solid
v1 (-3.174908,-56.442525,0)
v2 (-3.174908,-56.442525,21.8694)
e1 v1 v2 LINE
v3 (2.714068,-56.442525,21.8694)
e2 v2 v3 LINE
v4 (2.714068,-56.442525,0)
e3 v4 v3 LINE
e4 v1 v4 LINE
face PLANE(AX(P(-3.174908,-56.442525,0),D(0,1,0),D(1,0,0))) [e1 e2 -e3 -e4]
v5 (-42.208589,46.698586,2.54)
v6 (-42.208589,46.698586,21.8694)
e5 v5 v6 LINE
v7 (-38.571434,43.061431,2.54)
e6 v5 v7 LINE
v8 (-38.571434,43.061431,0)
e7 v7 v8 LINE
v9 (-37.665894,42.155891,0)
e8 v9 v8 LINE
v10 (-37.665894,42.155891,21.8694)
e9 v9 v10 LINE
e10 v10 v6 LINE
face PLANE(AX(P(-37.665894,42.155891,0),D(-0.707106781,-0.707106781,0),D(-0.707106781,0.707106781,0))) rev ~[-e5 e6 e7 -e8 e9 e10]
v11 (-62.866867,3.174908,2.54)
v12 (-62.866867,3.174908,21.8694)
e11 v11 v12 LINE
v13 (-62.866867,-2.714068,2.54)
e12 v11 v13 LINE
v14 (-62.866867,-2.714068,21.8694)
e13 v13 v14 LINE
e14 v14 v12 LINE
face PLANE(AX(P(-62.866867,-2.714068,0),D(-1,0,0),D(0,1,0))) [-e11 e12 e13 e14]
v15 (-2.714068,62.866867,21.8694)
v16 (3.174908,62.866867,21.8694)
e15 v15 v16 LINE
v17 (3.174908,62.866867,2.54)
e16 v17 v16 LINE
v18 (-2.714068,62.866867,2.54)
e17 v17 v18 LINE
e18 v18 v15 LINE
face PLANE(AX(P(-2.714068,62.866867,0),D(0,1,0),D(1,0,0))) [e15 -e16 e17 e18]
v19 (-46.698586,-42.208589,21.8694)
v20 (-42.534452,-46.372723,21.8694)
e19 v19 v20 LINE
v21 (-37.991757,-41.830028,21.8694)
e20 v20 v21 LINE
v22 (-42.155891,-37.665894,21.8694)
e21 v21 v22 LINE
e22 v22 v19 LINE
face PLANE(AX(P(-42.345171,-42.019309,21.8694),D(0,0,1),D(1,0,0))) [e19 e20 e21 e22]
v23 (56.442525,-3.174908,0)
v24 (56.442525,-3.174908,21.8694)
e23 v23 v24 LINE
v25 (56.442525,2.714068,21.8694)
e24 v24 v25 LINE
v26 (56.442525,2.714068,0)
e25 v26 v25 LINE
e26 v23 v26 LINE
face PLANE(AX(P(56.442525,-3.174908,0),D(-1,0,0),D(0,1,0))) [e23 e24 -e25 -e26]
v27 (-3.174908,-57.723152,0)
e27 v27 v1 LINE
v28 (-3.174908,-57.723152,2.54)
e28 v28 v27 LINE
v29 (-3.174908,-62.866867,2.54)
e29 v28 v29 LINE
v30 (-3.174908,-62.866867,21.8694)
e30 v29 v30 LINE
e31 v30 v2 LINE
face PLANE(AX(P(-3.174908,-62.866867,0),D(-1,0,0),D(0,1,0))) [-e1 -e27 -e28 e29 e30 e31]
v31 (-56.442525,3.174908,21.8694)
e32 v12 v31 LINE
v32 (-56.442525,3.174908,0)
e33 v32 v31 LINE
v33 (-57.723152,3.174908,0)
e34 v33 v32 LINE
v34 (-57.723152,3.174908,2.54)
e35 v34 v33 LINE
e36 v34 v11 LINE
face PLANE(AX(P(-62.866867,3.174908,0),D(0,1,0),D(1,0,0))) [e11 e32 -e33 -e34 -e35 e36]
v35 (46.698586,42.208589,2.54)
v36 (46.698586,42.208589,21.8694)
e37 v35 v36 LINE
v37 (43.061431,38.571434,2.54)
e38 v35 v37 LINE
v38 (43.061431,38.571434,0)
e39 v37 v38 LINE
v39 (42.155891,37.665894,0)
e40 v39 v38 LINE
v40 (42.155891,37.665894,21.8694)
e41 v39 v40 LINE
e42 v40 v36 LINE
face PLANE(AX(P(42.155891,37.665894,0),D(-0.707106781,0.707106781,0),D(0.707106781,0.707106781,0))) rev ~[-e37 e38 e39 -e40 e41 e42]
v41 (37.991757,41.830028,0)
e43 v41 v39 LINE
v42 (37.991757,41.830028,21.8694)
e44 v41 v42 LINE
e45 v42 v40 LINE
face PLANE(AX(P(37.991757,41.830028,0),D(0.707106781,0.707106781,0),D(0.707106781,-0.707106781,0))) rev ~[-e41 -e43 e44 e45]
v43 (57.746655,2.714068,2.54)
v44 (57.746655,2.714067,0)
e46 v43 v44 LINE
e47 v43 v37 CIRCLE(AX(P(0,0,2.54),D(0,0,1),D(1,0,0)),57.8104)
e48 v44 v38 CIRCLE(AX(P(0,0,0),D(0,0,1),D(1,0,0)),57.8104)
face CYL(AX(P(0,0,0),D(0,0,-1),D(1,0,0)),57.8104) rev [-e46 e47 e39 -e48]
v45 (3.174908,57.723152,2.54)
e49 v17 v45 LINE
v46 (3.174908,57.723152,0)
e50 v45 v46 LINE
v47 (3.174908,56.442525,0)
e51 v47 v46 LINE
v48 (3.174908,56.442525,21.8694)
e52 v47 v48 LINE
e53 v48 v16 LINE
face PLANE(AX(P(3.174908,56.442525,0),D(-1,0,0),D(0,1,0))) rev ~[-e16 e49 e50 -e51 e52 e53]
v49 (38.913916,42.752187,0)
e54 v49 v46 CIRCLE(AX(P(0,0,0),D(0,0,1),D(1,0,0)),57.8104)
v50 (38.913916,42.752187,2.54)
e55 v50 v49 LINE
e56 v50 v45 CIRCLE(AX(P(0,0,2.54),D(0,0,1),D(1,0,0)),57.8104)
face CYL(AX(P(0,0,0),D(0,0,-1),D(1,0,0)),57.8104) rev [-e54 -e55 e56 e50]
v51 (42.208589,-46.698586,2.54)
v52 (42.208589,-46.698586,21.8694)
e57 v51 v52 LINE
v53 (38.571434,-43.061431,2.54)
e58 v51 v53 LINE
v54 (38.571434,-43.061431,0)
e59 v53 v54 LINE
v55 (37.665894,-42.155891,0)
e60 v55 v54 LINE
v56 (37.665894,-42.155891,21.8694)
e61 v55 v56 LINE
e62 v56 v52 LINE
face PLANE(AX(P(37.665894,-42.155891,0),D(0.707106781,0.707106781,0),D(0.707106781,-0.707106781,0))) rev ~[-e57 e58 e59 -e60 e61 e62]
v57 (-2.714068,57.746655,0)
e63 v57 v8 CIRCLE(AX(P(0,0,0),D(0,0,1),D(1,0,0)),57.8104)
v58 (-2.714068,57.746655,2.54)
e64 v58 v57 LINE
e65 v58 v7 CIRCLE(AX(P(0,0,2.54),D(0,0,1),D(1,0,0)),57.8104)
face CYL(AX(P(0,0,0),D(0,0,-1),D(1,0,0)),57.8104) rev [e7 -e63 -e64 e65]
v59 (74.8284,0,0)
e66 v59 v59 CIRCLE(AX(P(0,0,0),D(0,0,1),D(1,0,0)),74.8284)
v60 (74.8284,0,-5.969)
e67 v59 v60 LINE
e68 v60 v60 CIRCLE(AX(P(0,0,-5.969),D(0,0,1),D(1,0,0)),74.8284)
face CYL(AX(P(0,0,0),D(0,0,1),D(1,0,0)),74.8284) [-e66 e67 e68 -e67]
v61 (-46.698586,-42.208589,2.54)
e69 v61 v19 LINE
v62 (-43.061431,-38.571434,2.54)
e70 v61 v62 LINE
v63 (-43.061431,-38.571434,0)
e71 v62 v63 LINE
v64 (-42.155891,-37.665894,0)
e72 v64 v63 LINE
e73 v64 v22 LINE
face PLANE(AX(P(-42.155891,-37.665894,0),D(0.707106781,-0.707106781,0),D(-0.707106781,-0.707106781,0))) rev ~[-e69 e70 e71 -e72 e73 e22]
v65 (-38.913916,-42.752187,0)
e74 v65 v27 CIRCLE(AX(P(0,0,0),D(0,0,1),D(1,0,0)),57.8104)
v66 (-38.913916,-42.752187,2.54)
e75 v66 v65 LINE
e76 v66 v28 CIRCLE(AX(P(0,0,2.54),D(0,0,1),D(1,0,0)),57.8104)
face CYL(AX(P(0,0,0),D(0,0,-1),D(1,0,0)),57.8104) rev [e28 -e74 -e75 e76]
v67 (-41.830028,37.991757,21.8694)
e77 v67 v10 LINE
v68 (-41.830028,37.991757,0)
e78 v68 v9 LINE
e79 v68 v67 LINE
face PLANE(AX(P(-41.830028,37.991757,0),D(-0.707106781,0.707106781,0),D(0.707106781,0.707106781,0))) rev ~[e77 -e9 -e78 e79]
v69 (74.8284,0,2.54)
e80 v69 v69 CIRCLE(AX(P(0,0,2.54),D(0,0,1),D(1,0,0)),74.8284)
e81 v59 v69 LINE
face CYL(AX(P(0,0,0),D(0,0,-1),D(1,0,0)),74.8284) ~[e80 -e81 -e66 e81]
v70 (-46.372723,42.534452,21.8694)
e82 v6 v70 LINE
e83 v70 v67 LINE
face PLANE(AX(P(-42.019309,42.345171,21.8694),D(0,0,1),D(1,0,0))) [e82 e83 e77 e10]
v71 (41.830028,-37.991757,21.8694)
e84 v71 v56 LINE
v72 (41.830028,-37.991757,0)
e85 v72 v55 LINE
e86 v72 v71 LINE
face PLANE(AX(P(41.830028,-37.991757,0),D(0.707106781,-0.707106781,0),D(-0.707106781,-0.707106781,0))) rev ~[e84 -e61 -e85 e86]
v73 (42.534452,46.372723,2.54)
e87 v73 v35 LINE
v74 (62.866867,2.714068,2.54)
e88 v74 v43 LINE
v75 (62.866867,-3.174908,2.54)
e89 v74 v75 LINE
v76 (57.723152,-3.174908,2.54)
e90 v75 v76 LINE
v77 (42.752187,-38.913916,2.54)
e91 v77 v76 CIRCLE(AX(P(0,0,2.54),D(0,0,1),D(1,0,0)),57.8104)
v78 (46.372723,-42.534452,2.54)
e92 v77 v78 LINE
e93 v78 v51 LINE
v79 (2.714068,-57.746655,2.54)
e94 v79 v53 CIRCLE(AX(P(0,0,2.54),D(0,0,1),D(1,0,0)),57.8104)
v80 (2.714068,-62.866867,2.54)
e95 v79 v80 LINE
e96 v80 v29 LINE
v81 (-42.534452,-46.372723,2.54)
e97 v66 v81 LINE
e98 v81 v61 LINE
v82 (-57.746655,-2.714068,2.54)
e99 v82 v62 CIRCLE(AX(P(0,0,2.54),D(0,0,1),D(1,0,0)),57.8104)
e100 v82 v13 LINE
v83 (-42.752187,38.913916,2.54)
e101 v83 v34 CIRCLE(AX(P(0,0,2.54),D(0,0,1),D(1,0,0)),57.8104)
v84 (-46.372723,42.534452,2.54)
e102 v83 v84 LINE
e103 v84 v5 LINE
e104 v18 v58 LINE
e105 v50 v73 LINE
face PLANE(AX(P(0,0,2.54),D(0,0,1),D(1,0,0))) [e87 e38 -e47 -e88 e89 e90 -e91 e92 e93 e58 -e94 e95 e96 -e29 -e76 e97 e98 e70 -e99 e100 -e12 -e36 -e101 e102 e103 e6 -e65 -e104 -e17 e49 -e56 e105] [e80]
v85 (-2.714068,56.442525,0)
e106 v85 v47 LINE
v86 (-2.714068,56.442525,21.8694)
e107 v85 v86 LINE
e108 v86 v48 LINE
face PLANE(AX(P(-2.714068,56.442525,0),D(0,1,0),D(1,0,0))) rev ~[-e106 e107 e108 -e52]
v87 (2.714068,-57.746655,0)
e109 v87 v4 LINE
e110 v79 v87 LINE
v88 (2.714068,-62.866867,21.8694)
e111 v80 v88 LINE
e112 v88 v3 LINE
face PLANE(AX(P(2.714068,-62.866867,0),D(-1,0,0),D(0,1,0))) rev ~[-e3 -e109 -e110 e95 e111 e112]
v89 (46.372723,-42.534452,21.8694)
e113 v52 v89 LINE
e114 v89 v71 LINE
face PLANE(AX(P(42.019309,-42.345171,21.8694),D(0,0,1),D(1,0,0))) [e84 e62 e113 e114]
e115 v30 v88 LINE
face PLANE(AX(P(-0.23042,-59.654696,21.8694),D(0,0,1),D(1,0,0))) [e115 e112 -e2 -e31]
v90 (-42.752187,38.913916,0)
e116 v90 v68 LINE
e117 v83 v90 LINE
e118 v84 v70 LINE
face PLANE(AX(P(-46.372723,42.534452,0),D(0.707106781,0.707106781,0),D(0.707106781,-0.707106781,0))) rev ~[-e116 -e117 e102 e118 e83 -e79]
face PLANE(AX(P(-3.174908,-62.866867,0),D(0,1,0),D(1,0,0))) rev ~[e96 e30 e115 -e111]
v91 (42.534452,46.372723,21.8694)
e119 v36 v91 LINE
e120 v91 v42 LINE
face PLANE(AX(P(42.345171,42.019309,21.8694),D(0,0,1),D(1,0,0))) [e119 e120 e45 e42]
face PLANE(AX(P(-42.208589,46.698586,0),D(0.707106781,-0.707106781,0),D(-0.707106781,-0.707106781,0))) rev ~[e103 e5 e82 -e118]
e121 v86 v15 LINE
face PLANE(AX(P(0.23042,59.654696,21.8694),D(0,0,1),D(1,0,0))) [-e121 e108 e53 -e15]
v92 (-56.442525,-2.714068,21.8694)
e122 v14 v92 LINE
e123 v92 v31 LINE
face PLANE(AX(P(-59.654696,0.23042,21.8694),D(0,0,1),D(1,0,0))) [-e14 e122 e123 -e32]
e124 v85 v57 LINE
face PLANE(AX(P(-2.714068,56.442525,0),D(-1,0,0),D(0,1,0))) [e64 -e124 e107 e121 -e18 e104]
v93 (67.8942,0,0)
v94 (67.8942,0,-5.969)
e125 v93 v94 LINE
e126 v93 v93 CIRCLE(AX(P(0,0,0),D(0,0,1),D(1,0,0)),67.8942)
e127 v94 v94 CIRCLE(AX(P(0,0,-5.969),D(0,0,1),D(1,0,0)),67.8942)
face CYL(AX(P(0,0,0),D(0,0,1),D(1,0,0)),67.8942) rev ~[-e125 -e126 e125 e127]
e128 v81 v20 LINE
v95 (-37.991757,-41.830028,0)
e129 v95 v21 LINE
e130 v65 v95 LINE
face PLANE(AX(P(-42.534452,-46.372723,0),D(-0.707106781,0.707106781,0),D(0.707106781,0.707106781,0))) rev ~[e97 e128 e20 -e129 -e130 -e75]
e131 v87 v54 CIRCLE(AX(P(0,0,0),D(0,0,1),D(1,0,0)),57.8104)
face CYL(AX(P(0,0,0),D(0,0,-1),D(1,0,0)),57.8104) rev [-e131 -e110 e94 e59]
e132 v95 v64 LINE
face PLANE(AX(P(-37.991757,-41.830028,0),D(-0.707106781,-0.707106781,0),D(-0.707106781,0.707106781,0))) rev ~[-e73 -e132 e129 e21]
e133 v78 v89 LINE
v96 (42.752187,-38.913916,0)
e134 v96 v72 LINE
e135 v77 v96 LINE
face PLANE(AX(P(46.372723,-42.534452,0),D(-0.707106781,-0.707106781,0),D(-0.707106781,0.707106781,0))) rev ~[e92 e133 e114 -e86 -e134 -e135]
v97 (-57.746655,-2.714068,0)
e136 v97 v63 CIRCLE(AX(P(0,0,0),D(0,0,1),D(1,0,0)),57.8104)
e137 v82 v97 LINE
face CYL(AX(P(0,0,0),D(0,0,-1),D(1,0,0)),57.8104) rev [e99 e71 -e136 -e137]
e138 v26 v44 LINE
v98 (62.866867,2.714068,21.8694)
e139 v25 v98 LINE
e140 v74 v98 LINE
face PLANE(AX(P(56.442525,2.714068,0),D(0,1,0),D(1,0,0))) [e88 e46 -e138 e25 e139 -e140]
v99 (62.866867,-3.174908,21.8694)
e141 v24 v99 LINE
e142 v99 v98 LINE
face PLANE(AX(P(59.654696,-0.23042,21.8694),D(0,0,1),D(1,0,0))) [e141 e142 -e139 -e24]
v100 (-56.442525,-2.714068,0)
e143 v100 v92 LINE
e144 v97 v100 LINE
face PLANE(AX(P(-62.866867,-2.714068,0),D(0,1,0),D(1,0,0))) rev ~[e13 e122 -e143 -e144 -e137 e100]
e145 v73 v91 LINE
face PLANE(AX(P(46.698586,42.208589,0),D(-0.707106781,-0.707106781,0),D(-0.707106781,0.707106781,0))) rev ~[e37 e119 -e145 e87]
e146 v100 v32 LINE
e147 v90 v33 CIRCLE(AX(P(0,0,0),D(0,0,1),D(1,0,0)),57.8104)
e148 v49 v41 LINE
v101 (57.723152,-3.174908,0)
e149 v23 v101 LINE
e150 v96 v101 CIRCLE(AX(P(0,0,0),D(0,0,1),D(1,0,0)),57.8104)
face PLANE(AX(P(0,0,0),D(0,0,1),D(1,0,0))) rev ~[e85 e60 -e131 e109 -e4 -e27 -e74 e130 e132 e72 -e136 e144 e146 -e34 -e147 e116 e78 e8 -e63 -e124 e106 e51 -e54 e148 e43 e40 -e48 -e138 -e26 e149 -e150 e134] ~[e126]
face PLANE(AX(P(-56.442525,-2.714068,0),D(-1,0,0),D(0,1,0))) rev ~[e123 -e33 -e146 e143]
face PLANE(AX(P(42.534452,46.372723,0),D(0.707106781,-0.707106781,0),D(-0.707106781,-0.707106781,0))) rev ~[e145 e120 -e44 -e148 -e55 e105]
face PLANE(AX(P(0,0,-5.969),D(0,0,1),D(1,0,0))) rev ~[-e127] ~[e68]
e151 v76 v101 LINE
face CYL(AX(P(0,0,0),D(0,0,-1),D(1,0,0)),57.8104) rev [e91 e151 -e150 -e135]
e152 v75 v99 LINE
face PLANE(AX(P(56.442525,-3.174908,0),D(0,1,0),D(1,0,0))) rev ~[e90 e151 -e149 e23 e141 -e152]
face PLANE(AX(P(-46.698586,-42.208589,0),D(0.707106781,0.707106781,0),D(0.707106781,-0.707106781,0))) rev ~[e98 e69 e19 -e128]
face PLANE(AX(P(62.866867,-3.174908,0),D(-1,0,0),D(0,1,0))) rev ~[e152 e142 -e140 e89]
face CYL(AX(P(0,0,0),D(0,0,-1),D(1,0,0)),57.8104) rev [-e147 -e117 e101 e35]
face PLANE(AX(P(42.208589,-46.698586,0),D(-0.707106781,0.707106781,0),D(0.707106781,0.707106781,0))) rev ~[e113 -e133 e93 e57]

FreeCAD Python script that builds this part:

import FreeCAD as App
import Part
import Sketcher

V = App.Vector
Q = App.Units.Quantity


def add_polygon(sketch, points):
    """Adds a closed chain of lines whose ends are joined by coincident constraints."""
    first, n = sketch.GeometryCount, len(points)
    for a, b in zip(points, points[1:] + points[:1]):
        sketch.addGeometry(Part.LineSegment(App.Vector(*a, 0), App.Vector(*b, 0)), False)
    for i in range(n):
        sketch.addConstraint(Sketcher.Constraint("Coincident", first + i, 2, first + (i + 1) % n, 1))

doc = App.newDocument("Part")
body = doc.addObject("PartDesign::Body", "Body")

# Sketch on XY plane
sketch1 = doc.addObject("Sketcher::SketchObject", "Sketch")
body.addObject(sketch1)
sketch1.AttachmentSupport = (doc.XY_Plane, [""])
sketch1.MapMode = "FlatFace"
sketch1.addGeometry([
    Part.Circle(V(0, 0, 0), V(0, 0, 1), 75),
    Part.Circle(V(0, 0, 0), V(0, 0, 1), 68),
], False)
sketch1.addConstraint([
    Sketcher.Constraint("Coincident", 0, 3, -1, 1),
    Sketcher.Constraint("Coincident", 1, 3, -1, 1),
    Sketcher.Constraint("Diameter", 0, Q("5.892 in")),
    Sketcher.Constraint("Diameter", 1, Q("5.346 in")),
])
pad1 = doc.addObject("PartDesign::Pad", "Pad")
body.addObject(pad1)
pad1.Profile = sketch1
pad1.Length = Q("0.235 in")
pad1.Reversed = True

# Sketch on XY plane
sketch2 = doc.addObject("Sketcher::SketchObject", "Sketch001")
body.addObject(sketch2)
sketch2.AttachmentSupport = (doc.XY_Plane, [""])
sketch2.MapMode = "FlatFace"
sketch2.addGeometry([
    Part.Circle(V(0, 0, 0), V(0, 0, 1), 75),
    Part.Circle(V(0, 0, 0), V(0, 0, 1), 58),
], False)
sketch2.addConstraint([
    Sketcher.Constraint("Coincident", 0, 3, -1, 1),
    Sketcher.Constraint("Coincident", 1, 3, -1, 1),
    Sketcher.Constraint("Diameter", 0, Q("5.892 in")),
    Sketcher.Constraint("Diameter", 1, Q("4.552 in")),
])
pad2 = doc.addObject("PartDesign::Pad", "Pad001")
body.addObject(pad2)
pad2.Profile = sketch2
pad2.Length = Q("0.1 in")

# Sketch on XY plane
sketch3 = doc.addObject("Sketcher::SketchObject", "Sketch002")
body.addObject(sketch3)
sketch3.AttachmentSupport = (doc.XY_Plane, [""])
sketch3.MapMode = "FlatFace"
add_polygon(sketch3, [(-63, 3), (-63, -3), (-56, -3), (-56, 3)])  # lines 0-3
add_polygon(sketch3, [(-42, -38), (-47, -42), (-43, -46), (-38, -42)])  # lines 4-7
add_polygon(sketch3, [(-3, -56), (-3, -63), (3, -63), (3, -56)])  # lines 8-11
add_polygon(sketch3, [(38, -42), (42, -47), (46, -43), (42, -38)])  # lines 12-15
add_polygon(sketch3, [(56, 3), (56, -3), (63, -3), (63, 3)])  # lines 16-19
add_polygon(sketch3, [(42, 38), (47, 42), (43, 46), (38, 42)])  # lines 20-23
add_polygon(sketch3, [(-3, 63), (-3, 56), (3, 56), (3, 63)])  # lines 24-27
add_polygon(sketch3, [(-38, 42), (-42, 47), (-46, 43), (-42, 38)])  # lines 28-31
sketch3.addConstraint([
    Sketcher.Constraint("Vertical", 0),
    Sketcher.Constraint("Horizontal", 1),
    Sketcher.Constraint("Vertical", 2),
    Sketcher.Constraint("Horizontal", 3),
    Sketcher.Constraint("Vertical", 8),
    Sketcher.Constraint("Horizontal", 9),
    Sketcher.Constraint("Vertical", 10),
    Sketcher.Constraint("Horizontal", 11),
    Sketcher.Constraint("Vertical", 16),
    Sketcher.Constraint("Horizontal", 17),
    Sketcher.Constraint("Vertical", 18),
    Sketcher.Constraint("Horizontal", 19),
    Sketcher.Constraint("Vertical", 24),
    Sketcher.Constraint("Horizontal", 25),
    Sketcher.Constraint("Vertical", 26),
    Sketcher.Constraint("Horizontal", 27),
    Sketcher.Constraint("Symmetric", 2, 2, 16, 2, -1, 1),
    Sketcher.Constraint("Symmetric", 0, 2, 18, 2, -1, 1),
    Sketcher.Constraint("Symmetric", 4, 2, 20, 2, -1, 1),
    Sketcher.Constraint("Symmetric", 5, 2, 21, 2, -1, 1),
    Sketcher.Constraint("Symmetric", 6, 2, 22, 2, -1, 1),
    Sketcher.Constraint("Symmetric", 7, 2, 23, 2, -1, 1),
    Sketcher.Constraint("Symmetric", 10, 2, 24, 2, -1, 1),
    Sketcher.Constraint("Symmetric", 8, 2, 26, 2, -1, 1),
    Sketcher.Constraint("Symmetric", 12, 2, 28, 2, -1, 1),
    Sketcher.Constraint("Symmetric", 13, 2, 29, 2, -1, 1),
    Sketcher.Constraint("Symmetric", 14, 2, 30, 2, -1, 1),
    Sketcher.Constraint("Symmetric", 15, 2, 31, 2, -1, 1),
    Sketcher.Constraint("Perpendicular", 4, 5),
    Sketcher.Constraint("Perpendicular", 5, 6),
    Sketcher.Constraint("Perpendicular", 6, 7),
    Sketcher.Constraint("Parallel", 7, 12),
    Sketcher.Constraint("Perpendicular", 12, 13),
    Sketcher.Constraint("Perpendicular", 13, 14),
    Sketcher.Constraint("Perpendicular", 14, 15),
    Sketcher.Constraint("Equal", 27, 0),
    Sketcher.Constraint("Equal", 19, 8),
    Sketcher.Constraint("Equal", 6, 12),
    Sketcher.Constraint("Equal", 7, 13),
    Sketcher.Constraint("Angle", 4, Q("-135 deg")),
    Sketcher.Constraint("DistanceX", 1, 1, 1, 2, 6.424342),
    Sketcher.Constraint("DistanceY", 8, 2, 1, 2, 60.1528),
    Sketcher.Constraint("Distance", 4, 6.424341),
    Sketcher.Constraint("DistanceX", 9, 1, 9, 2, 5.888975),
    Sketcher.Constraint("DistanceY", 4, 2, -1, 1, 42.208589),
    Sketcher.Constraint("DistanceX", 7, 2, -1, 1, 42.155891),
    Sketcher.Constraint("DistanceX", -1, 1, 12, 2, 42.208589),
    Sketcher.Constraint("DistanceY", 15, 2, -1, 1, 42.155891),
    Sketcher.Constraint("DistanceX", 1, 2, 4, 2, 9.743939),
    Sketcher.Constraint("DistanceY", 4, 2, 1, 2, 39.494522),
    Sketcher.Constraint("DistanceY", 5, 2, 2, 2, 49.547631),
    Sketcher.Constraint("DistanceX", 6, 2, 8, 2, 34.816849),
])
pad3 = doc.addObject("PartDesign::Pad", "Pad002")
body.addObject(pad3)
pad3.Profile = sketch3
pad3.Length = Q("0.861 in")

doc.recompute()
